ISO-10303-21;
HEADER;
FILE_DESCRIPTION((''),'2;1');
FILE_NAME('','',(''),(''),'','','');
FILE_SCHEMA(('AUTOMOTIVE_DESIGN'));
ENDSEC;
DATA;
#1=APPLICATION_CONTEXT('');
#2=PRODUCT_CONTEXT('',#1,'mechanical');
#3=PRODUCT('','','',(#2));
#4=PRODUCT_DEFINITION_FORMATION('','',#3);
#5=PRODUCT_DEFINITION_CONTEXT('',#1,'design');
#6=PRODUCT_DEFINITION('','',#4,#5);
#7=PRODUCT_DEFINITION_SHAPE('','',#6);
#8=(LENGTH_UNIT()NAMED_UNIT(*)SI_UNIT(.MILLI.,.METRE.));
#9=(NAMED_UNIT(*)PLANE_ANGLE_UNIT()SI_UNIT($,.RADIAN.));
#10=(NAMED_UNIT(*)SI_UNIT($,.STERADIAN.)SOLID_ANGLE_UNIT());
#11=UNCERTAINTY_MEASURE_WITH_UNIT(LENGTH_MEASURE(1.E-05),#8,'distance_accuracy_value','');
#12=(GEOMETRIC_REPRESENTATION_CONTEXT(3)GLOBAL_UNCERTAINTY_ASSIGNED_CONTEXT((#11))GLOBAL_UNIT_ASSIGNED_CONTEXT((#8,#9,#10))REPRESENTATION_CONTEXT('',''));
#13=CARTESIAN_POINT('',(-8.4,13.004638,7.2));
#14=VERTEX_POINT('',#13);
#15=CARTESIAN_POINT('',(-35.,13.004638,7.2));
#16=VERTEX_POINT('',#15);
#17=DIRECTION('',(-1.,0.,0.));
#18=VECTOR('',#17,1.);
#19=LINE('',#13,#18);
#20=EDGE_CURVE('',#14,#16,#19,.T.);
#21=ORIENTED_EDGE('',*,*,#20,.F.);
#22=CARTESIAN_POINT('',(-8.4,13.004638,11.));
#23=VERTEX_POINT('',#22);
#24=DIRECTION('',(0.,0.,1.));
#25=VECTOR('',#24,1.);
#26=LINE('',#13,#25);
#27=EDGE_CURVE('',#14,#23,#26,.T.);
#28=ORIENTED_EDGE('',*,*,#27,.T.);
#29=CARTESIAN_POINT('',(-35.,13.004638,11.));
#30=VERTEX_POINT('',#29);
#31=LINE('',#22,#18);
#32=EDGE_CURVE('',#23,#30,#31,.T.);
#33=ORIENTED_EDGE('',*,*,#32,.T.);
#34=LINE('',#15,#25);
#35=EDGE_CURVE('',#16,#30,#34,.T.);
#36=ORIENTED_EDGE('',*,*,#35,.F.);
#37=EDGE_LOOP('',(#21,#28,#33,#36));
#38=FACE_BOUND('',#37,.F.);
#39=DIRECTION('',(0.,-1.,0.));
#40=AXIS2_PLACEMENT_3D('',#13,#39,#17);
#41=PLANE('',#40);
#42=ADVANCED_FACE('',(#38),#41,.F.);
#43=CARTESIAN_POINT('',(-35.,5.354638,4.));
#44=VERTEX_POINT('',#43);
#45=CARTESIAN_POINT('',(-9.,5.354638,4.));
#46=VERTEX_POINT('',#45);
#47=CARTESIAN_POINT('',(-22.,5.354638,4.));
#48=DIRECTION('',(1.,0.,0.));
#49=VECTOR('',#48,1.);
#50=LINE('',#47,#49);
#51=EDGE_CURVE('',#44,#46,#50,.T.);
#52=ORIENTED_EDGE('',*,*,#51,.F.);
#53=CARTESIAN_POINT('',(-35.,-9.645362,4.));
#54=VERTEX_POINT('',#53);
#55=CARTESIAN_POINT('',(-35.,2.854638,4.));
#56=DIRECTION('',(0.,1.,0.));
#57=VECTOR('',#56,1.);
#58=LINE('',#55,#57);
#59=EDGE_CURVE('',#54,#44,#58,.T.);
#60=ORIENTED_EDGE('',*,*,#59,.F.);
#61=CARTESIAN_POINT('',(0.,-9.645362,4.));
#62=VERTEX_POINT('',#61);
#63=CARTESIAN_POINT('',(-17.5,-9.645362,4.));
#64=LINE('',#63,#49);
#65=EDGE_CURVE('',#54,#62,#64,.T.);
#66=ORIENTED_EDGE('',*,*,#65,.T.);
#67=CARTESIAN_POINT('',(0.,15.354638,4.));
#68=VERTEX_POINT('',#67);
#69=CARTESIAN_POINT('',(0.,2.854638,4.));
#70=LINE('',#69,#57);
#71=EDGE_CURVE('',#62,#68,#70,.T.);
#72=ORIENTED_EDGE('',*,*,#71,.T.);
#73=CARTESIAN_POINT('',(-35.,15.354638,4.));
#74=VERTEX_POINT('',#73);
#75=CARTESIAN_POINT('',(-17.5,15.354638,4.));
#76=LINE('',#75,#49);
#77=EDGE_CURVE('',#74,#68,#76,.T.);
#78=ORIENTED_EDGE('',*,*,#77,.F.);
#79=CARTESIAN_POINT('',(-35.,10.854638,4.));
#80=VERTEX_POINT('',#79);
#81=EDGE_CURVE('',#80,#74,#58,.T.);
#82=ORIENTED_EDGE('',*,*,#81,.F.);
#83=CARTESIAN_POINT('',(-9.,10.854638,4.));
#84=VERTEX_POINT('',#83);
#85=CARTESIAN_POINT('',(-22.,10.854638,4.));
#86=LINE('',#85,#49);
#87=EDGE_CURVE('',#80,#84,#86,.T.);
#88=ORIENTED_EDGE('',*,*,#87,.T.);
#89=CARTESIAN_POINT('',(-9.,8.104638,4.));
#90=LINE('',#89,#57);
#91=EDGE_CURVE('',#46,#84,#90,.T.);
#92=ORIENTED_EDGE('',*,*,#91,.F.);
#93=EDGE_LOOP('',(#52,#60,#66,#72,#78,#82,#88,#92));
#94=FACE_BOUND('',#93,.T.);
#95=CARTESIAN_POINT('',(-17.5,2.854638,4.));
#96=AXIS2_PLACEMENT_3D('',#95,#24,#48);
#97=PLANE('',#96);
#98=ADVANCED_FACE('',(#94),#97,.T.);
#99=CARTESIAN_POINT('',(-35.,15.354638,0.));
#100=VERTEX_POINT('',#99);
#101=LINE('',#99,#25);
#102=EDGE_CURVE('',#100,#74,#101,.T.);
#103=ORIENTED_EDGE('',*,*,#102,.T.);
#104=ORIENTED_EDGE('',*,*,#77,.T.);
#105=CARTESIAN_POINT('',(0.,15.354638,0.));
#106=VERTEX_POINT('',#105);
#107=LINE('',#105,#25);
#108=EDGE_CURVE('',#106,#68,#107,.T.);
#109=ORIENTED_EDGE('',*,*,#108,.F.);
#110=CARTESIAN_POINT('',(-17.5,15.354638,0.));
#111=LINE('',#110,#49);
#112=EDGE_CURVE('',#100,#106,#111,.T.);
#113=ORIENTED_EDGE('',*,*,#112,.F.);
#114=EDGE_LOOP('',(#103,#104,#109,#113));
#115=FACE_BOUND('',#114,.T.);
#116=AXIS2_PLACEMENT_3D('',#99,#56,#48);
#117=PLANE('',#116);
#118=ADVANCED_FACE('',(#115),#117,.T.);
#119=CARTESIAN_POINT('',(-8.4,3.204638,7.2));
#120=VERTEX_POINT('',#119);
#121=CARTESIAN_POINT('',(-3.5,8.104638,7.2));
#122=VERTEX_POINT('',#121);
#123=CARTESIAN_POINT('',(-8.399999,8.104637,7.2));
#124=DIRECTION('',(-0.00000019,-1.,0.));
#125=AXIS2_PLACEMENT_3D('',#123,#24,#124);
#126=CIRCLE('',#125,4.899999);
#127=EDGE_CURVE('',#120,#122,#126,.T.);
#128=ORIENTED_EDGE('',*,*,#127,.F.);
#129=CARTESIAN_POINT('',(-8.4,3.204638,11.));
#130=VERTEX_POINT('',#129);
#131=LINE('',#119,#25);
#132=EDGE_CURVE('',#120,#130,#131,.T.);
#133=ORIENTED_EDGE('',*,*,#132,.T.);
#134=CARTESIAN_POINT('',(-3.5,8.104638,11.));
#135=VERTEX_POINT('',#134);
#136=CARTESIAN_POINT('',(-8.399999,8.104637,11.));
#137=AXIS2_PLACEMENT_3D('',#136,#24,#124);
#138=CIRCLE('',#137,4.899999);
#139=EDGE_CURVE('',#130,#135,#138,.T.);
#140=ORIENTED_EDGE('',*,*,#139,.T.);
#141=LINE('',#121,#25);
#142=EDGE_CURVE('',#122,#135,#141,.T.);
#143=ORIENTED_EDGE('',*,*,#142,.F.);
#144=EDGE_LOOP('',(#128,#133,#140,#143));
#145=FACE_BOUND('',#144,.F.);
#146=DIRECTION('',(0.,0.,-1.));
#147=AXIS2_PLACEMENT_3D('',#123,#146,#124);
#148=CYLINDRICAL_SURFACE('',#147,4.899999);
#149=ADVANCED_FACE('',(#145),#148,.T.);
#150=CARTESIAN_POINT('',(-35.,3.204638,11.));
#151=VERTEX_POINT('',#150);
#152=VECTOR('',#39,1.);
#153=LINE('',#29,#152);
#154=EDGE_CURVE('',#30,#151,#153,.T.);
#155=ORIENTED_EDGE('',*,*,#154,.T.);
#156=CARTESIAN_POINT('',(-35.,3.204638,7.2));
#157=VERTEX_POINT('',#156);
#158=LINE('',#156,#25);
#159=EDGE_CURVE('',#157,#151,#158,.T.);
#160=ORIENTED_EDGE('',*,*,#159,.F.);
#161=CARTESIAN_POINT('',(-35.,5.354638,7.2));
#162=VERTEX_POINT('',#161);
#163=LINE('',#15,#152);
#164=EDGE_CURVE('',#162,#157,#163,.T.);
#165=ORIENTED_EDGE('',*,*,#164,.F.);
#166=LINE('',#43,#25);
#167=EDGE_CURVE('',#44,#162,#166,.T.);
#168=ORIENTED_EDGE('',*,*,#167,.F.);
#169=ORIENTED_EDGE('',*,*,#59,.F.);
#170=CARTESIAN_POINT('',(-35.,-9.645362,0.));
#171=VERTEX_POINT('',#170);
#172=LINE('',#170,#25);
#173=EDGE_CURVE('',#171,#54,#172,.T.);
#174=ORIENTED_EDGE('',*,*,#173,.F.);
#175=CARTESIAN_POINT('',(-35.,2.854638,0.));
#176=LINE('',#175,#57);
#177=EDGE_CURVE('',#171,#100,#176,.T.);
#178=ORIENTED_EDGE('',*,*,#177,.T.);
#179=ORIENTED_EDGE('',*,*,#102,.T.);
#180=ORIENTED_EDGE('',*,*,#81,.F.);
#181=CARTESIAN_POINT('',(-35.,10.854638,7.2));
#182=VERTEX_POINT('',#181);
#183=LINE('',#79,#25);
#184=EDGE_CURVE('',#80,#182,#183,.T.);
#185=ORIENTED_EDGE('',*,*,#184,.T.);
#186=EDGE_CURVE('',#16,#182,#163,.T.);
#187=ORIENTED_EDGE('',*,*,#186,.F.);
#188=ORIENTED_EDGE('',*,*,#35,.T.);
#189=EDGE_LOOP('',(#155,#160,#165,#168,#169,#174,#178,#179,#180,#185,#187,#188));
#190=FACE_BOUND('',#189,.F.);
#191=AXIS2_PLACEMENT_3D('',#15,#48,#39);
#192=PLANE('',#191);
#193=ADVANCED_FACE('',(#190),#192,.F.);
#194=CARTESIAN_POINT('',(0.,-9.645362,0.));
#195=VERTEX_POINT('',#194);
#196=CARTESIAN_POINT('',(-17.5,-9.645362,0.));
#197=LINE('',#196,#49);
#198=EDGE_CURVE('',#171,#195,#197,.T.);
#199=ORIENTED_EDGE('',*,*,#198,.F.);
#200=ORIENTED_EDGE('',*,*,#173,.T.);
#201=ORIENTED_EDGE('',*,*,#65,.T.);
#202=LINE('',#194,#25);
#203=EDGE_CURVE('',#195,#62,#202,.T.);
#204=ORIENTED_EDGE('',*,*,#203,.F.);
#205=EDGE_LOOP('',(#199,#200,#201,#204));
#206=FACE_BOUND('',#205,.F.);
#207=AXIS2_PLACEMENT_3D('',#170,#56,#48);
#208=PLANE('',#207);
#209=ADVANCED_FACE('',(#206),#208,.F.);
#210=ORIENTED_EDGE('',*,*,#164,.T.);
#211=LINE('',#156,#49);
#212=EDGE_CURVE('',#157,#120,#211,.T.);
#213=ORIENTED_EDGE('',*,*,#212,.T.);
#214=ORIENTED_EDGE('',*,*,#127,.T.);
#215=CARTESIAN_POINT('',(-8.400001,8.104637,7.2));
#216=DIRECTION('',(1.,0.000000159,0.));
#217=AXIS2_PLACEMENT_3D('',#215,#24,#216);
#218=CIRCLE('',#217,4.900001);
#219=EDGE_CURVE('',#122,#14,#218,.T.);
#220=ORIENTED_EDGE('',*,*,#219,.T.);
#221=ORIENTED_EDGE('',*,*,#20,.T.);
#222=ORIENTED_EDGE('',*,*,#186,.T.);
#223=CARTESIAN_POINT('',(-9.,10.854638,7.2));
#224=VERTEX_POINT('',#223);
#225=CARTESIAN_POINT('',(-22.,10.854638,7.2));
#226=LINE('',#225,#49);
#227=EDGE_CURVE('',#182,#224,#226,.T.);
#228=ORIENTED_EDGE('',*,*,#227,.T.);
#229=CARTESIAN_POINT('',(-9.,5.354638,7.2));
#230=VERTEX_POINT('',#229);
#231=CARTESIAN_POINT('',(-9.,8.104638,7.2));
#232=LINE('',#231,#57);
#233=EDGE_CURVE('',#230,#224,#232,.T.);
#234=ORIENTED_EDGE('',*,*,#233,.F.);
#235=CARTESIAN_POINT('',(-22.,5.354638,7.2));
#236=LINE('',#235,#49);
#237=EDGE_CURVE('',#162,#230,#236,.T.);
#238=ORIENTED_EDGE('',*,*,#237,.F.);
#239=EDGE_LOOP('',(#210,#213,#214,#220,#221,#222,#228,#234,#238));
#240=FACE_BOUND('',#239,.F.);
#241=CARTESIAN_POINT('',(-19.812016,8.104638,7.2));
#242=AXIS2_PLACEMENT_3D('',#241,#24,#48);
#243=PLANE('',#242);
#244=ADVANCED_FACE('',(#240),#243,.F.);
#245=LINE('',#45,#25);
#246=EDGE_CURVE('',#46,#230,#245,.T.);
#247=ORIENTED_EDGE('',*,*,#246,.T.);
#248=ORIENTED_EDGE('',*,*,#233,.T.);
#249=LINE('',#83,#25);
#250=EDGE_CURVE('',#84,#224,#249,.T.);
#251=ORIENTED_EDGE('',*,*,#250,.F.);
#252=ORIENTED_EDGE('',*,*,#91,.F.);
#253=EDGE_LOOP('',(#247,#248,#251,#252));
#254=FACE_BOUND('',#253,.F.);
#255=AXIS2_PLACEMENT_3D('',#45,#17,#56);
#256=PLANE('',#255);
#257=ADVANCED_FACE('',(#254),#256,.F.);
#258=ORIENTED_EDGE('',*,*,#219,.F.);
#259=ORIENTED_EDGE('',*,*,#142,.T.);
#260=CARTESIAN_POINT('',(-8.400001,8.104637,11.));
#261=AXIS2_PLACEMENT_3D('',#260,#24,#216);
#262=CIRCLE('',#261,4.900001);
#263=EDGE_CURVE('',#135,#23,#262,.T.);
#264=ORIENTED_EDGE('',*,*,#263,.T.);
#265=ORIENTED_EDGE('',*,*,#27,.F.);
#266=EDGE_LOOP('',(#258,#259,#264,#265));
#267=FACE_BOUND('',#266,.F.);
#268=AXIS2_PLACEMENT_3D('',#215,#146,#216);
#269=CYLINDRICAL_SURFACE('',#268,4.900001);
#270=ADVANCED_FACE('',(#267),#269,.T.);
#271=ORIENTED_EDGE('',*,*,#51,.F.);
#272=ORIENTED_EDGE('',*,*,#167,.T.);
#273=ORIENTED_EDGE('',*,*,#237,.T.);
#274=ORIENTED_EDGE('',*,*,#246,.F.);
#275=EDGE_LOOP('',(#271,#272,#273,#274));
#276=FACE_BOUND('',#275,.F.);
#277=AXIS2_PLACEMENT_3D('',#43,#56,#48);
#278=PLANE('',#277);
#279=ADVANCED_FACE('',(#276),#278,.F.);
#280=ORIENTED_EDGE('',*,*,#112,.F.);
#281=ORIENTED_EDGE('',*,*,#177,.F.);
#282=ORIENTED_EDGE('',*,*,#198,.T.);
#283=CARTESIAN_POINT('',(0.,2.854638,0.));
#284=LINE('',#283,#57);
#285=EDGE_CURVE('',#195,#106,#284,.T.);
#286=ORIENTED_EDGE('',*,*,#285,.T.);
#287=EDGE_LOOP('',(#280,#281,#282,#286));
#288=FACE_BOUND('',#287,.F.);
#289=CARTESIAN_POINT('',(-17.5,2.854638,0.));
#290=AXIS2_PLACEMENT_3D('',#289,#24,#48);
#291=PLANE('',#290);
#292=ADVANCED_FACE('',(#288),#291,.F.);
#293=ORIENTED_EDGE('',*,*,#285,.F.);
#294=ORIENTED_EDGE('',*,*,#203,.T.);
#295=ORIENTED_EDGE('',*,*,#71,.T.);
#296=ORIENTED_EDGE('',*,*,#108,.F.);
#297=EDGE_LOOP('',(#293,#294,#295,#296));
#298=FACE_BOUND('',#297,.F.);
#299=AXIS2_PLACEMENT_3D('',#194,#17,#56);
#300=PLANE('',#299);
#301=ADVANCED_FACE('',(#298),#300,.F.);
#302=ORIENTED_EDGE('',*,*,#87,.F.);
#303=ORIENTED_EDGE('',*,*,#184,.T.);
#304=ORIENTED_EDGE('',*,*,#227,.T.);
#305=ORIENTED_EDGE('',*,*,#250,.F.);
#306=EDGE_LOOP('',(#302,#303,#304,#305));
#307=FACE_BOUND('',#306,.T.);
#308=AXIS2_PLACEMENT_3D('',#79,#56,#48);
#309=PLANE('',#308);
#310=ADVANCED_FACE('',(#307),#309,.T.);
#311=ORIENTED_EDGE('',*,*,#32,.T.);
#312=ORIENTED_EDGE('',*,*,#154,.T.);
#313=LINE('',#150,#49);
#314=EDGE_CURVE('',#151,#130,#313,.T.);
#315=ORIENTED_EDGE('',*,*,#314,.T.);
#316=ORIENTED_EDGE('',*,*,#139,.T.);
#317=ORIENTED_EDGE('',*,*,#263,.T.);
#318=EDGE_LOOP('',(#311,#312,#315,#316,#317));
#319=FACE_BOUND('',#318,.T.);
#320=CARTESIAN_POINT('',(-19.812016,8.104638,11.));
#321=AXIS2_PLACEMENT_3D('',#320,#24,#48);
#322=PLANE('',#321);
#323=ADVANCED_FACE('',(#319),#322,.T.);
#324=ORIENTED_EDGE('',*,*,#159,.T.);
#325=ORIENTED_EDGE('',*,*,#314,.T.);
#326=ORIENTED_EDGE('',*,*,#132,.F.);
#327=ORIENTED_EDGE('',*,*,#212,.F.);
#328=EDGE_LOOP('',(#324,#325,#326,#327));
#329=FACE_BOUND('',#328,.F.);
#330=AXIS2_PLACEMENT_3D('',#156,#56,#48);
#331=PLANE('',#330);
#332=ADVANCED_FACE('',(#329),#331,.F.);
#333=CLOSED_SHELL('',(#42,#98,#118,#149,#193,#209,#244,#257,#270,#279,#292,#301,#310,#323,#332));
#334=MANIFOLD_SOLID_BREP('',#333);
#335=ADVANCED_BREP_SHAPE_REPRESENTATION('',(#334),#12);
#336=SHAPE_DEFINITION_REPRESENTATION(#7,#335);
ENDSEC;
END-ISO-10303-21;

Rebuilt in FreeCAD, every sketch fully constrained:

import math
import FreeCAD as App
import Part
import Sketcher
Q = App.Units.Quantity


def add_polygon(sketch, points):
    """Adds a closed chain of lines whose ends are joined by coincident constraints."""
    first, n = sketch.GeometryCount, len(points)
    for a, b in zip(points, points[1:] + points[:1]):
        sketch.addGeometry(Part.LineSegment(App.Vector(*a, 0), App.Vector(*b, 0)), False)
    for i in range(n):
        sketch.addConstraint(Sketcher.Constraint("Coincident", first + i, 2, first + (i + 1) % n, 1))

doc = App.newDocument("Part")
body = doc.addObject("PartDesign::Body", "Body")

# Sketch on XY plane
sketch1 = body.newObject("Sketcher::SketchObject", "Sketch")
sketch1.AttachmentSupport = (doc.getObject("XY_Plane"), [""])
sketch1.MapMode = "FlatFace"
add_polygon(sketch1, [(-35, 15), (-35, -10), (0, -10), (0, 15)])  # lines 0-3
sketch1.addConstraint([
    Sketcher.Constraint("Vertical", 0),
    Sketcher.Constraint("Horizontal", 1),
    Sketcher.Constraint("Vertical", 2),
    Sketcher.Constraint("Horizontal", 3),
    Sketcher.Constraint("PointOnObject", 1, 2, -2),
    Sketcher.Constraint("DistanceX", 1, 1, 1, 2, Q("35 mm")),
    Sketcher.Constraint("DistanceY", 0, 2, 0, 1, Q("25 mm")),
    Sketcher.Constraint("DistanceY", 0, 2, -1, 1, Q("9.645362 mm")),
])
pad1 = body.newObject("PartDesign::Pad", "Pad")
pad1.Profile = sketch1
pad1.Length = 4

# Sketch on XY plane
sketch2 = body.newObject("Sketcher::SketchObject", "Sketch001")
sketch2.AttachmentSupport = (doc.getObject("XY_Plane"), [""])
sketch2.MapMode = "FlatFace"
sketch2.AttachmentOffset = App.Placement(App.Vector(0, 0, 4), App.Rotation())
add_polygon(sketch2, [(-35, 11), (-35, 5), (-9, 5), (-9, 11)])  # lines 0-3
sketch2.addConstraint([
    Sketcher.Constraint("Vertical", 0),
    Sketcher.Constraint("Horizontal", 1),
    Sketcher.Constraint("Vertical", 2),
    Sketcher.Constraint("Horizontal", 3),
    Sketcher.Constraint("DistanceX", 1, 1, 1, 2, Q("26 mm")),
    Sketcher.Constraint("DistanceY", 0, 2, 0, 1, Q("5.5 mm")),
    Sketcher.Constraint("DistanceX", 0, 2, -1, 1, Q("35 mm")),
    Sketcher.Constraint("DistanceY", -1, 1, 0, 2, Q("5.354638 mm")),
])
pad2 = body.newObject("PartDesign::Pad", "Pad001")
pad2.Profile = sketch2
pad2.Length = 3.2

# Sketch on XY plane
sketch3 = body.newObject("Sketcher::SketchObject", "Sketch002")
sketch3.AttachmentSupport = (doc.getObject("XY_Plane"), [""])
sketch3.MapMode = "FlatFace"
sketch3.AttachmentOffset = App.Placement(App.Vector(0, 0, 7.2), App.Rotation())
sketch3.addGeometry([
    Part.LineSegment(App.Vector(-35, 3.2, 0), App.Vector(-8.4, 3.2, 0)),  # 0
    Part.ArcOfCircle(Part.Circle(App.Vector(-8.4, 8.1, 0), App.Vector(0, 0, 1), 4.9), math.radians(-90), math.radians(0)),  # 1
    Part.ArcOfCircle(Part.Circle(App.Vector(-8.4, 8.1, 0), App.Vector(0, 0, 1), 4.9), math.radians(0), math.radians(90)),  # 2
    Part.LineSegment(App.Vector(-8.4, 13, 0), App.Vector(-35, 13, 0)),  # 3
    Part.LineSegment(App.Vector(-35, 13, 0), App.Vector(-35, 3.2, 0)),  # 4
], False)
sketch3.addConstraint([
    Sketcher.Constraint("Tangent", 0, 2, 1, 1),
    Sketcher.Constraint("Tangent", 1, 2, 2, 1),
    Sketcher.Constraint("Tangent", 2, 2, 3, 1),
    Sketcher.Constraint("Coincident", 3, 2, 4, 1),
    Sketcher.Constraint("Coincident", 4, 2, 0, 1),
    Sketcher.Constraint("Horizontal", 0),
    Sketcher.Constraint("Horizontal", 3),
    Sketcher.Constraint("Vertical", 4),
    Sketcher.Constraint("Equal", 1, 2),
    Sketcher.Constraint("Horizontal", 2, 3, 1, 2),
    Sketcher.Constraint("Radius", 1, Q("4.899999 mm")),
    Sketcher.Constraint("DistanceX", 0, 1, 0, 2, Q("26.6 mm")),
    Sketcher.Constraint("DistanceX", 3, 2, -1, 1, Q("35 mm")),
    Sketcher.Constraint("DistanceY", -1, 1, 0, 2, Q("3.204638 mm")),
])
pad3 = body.newObject("PartDesign::Pad", "Pad002")
pad3.Profile = sketch3
pad3.Length = 3.8

doc.recompute()
